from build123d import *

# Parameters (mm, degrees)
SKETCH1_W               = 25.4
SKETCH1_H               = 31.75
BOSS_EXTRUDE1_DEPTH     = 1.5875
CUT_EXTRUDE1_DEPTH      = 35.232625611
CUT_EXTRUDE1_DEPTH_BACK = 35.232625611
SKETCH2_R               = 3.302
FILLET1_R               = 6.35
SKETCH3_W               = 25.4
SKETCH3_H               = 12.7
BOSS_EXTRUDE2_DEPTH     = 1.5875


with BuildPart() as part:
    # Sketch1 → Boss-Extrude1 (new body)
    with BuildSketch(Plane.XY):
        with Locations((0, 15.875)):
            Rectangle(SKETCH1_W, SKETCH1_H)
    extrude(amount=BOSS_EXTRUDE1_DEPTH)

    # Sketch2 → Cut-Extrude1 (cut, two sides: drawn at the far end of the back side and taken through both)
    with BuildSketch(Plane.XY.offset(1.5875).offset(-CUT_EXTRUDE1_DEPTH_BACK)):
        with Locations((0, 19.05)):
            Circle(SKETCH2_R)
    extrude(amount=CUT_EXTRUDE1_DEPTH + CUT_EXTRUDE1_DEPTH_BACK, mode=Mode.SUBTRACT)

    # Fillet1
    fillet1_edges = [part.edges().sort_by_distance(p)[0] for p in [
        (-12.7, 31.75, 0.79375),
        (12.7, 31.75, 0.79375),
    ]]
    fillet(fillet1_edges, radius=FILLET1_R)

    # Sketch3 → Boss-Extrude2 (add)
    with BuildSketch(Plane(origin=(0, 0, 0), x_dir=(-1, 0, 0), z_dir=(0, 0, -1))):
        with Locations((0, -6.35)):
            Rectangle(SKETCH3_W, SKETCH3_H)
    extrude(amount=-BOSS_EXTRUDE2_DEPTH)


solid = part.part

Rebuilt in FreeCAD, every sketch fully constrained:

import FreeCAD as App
import Part
import Sketcher

V = App.Vector
Q = App.Units.Quantity


def edges_at(feature, points):
    """Names of the edges that pass closest to the given points."""
    edges = feature.Shape.Edges
    near = lambda p: min(range(len(edges)), key=lambda i: edges[i].distToShape(Part.Vertex(*p))[0])
    return sorted({f"Edge{near(p) + 1}" for p in points})


def add_polygon(sketch, points):
    """Adds a closed chain of lines whose ends are joined by coincident constraints."""
    first, n = sketch.GeometryCount, len(points)
    for a, b in zip(points, points[1:] + points[:1]):
        sketch.addGeometry(Part.LineSegment(App.Vector(*a, 0), App.Vector(*b, 0)), False)
    for i in range(n):
        sketch.addConstraint(Sketcher.Constraint("Coincident", first + i, 2, first + (i + 1) % n, 1))

doc = App.newDocument("Part")
body = doc.addObject("PartDesign::Body", "Body")

# Sketch on XY plane
sketch1 = body.newObject("Sketcher::SketchObject", "Sketch")
sketch1.AttachmentSupport = (doc.getObject("XY_Plane"), [""])
sketch1.MapMode = "FlatFace"
add_polygon(sketch1, [(-13, 32), (-13, 0), (13, 0), (13, 32)])  # lines 0-3
sketch1.addConstraint([
    Sketcher.Constraint("Vertical", 0),
    Sketcher.Constraint("Horizontal", 1),
    Sketcher.Constraint("Vertical", 2),
    Sketcher.Constraint("Horizontal", 3),
    Sketcher.Constraint("Symmetric", 0, 2, 1, 2, -1, 1),
    Sketcher.Constraint("DistanceX", 1, 1, 1, 2, Q("1 in")),
    Sketcher.Constraint("DistanceY", 0, 2, 0, 1, Q("1.25 in")),
])
pad1 = body.newObject("PartDesign::Pad", "Pad")
pad1.Profile = sketch1
pad1.Length = Q("0.0625 in")

# Sketch on XY plane
sketch2 = body.newObject("Sketcher::SketchObject", "Sketch001")
sketch2.AttachmentSupport = (doc.getObject("XY_Plane"), [""])
sketch2.MapMode = "FlatFace"
sketch2.AttachmentOffset = App.Placement(V(0, 0, 0.0625 * 25.4), App.Rotation())
sketch2.addGeometry(Part.Circle(V(0, 19.1, 0), V(0, 0, 1), 3.3), False)
sketch2.addConstraint([
    Sketcher.Constraint("PointOnObject", 0, 3, -2),
    Sketcher.Constraint("Diameter", 0, Q("0.26 in")),
    Sketcher.Constraint("DistanceY", -1, 1, 0, 3, Q("0.75 in")),
])
pocket1 = body.newObject("PartDesign::Pocket", "Pocket")
pocket1.Profile = sketch2
pocket1.Type = "ThroughAll"
pocket1.Midplane = True
doc.recompute()

fillet = body.newObject("PartDesign::Fillet", "Fillet")
fillet.Base = (pocket1, edges_at(pocket1, [(-12.7, 31.75, 0.794), (12.7, 31.75, 0.794)]))
fillet.Radius = Q("0.25 in")

# Sketch on XY plane
sketch3 = body.newObject("Sketcher::SketchObject", "Sketch002")
sketch3.AttachmentSupport = (doc.getObject("XY_Plane"), [""])
sketch3.MapMode = "FlatFace"
add_polygon(sketch3, [(13, 0), (13, -13), (-13, -13), (-13, 0)])  # lines 0-3
sketch3.addConstraint([
    Sketcher.Constraint("Vertical", 0),
    Sketcher.Constraint("Horizontal", 1),
    Sketcher.Constraint("Vertical", 2),
    Sketcher.Constraint("Horizontal", 3),
    Sketcher.Constraint("Symmetric", 2, 2, 3, 2, -1, 1),
    Sketcher.Constraint("DistanceX", 1, 2, 1, 1, Q("1 in")),
    Sketcher.Constraint("DistanceY", 0, 2, 0, 1, Q("0.5 in")),
])
pad2 = body.newObject("PartDesign::Pad", "Pad001")
pad2.Profile = sketch3
pad2.Length = Q("0.0625 in")

doc.recompute()
